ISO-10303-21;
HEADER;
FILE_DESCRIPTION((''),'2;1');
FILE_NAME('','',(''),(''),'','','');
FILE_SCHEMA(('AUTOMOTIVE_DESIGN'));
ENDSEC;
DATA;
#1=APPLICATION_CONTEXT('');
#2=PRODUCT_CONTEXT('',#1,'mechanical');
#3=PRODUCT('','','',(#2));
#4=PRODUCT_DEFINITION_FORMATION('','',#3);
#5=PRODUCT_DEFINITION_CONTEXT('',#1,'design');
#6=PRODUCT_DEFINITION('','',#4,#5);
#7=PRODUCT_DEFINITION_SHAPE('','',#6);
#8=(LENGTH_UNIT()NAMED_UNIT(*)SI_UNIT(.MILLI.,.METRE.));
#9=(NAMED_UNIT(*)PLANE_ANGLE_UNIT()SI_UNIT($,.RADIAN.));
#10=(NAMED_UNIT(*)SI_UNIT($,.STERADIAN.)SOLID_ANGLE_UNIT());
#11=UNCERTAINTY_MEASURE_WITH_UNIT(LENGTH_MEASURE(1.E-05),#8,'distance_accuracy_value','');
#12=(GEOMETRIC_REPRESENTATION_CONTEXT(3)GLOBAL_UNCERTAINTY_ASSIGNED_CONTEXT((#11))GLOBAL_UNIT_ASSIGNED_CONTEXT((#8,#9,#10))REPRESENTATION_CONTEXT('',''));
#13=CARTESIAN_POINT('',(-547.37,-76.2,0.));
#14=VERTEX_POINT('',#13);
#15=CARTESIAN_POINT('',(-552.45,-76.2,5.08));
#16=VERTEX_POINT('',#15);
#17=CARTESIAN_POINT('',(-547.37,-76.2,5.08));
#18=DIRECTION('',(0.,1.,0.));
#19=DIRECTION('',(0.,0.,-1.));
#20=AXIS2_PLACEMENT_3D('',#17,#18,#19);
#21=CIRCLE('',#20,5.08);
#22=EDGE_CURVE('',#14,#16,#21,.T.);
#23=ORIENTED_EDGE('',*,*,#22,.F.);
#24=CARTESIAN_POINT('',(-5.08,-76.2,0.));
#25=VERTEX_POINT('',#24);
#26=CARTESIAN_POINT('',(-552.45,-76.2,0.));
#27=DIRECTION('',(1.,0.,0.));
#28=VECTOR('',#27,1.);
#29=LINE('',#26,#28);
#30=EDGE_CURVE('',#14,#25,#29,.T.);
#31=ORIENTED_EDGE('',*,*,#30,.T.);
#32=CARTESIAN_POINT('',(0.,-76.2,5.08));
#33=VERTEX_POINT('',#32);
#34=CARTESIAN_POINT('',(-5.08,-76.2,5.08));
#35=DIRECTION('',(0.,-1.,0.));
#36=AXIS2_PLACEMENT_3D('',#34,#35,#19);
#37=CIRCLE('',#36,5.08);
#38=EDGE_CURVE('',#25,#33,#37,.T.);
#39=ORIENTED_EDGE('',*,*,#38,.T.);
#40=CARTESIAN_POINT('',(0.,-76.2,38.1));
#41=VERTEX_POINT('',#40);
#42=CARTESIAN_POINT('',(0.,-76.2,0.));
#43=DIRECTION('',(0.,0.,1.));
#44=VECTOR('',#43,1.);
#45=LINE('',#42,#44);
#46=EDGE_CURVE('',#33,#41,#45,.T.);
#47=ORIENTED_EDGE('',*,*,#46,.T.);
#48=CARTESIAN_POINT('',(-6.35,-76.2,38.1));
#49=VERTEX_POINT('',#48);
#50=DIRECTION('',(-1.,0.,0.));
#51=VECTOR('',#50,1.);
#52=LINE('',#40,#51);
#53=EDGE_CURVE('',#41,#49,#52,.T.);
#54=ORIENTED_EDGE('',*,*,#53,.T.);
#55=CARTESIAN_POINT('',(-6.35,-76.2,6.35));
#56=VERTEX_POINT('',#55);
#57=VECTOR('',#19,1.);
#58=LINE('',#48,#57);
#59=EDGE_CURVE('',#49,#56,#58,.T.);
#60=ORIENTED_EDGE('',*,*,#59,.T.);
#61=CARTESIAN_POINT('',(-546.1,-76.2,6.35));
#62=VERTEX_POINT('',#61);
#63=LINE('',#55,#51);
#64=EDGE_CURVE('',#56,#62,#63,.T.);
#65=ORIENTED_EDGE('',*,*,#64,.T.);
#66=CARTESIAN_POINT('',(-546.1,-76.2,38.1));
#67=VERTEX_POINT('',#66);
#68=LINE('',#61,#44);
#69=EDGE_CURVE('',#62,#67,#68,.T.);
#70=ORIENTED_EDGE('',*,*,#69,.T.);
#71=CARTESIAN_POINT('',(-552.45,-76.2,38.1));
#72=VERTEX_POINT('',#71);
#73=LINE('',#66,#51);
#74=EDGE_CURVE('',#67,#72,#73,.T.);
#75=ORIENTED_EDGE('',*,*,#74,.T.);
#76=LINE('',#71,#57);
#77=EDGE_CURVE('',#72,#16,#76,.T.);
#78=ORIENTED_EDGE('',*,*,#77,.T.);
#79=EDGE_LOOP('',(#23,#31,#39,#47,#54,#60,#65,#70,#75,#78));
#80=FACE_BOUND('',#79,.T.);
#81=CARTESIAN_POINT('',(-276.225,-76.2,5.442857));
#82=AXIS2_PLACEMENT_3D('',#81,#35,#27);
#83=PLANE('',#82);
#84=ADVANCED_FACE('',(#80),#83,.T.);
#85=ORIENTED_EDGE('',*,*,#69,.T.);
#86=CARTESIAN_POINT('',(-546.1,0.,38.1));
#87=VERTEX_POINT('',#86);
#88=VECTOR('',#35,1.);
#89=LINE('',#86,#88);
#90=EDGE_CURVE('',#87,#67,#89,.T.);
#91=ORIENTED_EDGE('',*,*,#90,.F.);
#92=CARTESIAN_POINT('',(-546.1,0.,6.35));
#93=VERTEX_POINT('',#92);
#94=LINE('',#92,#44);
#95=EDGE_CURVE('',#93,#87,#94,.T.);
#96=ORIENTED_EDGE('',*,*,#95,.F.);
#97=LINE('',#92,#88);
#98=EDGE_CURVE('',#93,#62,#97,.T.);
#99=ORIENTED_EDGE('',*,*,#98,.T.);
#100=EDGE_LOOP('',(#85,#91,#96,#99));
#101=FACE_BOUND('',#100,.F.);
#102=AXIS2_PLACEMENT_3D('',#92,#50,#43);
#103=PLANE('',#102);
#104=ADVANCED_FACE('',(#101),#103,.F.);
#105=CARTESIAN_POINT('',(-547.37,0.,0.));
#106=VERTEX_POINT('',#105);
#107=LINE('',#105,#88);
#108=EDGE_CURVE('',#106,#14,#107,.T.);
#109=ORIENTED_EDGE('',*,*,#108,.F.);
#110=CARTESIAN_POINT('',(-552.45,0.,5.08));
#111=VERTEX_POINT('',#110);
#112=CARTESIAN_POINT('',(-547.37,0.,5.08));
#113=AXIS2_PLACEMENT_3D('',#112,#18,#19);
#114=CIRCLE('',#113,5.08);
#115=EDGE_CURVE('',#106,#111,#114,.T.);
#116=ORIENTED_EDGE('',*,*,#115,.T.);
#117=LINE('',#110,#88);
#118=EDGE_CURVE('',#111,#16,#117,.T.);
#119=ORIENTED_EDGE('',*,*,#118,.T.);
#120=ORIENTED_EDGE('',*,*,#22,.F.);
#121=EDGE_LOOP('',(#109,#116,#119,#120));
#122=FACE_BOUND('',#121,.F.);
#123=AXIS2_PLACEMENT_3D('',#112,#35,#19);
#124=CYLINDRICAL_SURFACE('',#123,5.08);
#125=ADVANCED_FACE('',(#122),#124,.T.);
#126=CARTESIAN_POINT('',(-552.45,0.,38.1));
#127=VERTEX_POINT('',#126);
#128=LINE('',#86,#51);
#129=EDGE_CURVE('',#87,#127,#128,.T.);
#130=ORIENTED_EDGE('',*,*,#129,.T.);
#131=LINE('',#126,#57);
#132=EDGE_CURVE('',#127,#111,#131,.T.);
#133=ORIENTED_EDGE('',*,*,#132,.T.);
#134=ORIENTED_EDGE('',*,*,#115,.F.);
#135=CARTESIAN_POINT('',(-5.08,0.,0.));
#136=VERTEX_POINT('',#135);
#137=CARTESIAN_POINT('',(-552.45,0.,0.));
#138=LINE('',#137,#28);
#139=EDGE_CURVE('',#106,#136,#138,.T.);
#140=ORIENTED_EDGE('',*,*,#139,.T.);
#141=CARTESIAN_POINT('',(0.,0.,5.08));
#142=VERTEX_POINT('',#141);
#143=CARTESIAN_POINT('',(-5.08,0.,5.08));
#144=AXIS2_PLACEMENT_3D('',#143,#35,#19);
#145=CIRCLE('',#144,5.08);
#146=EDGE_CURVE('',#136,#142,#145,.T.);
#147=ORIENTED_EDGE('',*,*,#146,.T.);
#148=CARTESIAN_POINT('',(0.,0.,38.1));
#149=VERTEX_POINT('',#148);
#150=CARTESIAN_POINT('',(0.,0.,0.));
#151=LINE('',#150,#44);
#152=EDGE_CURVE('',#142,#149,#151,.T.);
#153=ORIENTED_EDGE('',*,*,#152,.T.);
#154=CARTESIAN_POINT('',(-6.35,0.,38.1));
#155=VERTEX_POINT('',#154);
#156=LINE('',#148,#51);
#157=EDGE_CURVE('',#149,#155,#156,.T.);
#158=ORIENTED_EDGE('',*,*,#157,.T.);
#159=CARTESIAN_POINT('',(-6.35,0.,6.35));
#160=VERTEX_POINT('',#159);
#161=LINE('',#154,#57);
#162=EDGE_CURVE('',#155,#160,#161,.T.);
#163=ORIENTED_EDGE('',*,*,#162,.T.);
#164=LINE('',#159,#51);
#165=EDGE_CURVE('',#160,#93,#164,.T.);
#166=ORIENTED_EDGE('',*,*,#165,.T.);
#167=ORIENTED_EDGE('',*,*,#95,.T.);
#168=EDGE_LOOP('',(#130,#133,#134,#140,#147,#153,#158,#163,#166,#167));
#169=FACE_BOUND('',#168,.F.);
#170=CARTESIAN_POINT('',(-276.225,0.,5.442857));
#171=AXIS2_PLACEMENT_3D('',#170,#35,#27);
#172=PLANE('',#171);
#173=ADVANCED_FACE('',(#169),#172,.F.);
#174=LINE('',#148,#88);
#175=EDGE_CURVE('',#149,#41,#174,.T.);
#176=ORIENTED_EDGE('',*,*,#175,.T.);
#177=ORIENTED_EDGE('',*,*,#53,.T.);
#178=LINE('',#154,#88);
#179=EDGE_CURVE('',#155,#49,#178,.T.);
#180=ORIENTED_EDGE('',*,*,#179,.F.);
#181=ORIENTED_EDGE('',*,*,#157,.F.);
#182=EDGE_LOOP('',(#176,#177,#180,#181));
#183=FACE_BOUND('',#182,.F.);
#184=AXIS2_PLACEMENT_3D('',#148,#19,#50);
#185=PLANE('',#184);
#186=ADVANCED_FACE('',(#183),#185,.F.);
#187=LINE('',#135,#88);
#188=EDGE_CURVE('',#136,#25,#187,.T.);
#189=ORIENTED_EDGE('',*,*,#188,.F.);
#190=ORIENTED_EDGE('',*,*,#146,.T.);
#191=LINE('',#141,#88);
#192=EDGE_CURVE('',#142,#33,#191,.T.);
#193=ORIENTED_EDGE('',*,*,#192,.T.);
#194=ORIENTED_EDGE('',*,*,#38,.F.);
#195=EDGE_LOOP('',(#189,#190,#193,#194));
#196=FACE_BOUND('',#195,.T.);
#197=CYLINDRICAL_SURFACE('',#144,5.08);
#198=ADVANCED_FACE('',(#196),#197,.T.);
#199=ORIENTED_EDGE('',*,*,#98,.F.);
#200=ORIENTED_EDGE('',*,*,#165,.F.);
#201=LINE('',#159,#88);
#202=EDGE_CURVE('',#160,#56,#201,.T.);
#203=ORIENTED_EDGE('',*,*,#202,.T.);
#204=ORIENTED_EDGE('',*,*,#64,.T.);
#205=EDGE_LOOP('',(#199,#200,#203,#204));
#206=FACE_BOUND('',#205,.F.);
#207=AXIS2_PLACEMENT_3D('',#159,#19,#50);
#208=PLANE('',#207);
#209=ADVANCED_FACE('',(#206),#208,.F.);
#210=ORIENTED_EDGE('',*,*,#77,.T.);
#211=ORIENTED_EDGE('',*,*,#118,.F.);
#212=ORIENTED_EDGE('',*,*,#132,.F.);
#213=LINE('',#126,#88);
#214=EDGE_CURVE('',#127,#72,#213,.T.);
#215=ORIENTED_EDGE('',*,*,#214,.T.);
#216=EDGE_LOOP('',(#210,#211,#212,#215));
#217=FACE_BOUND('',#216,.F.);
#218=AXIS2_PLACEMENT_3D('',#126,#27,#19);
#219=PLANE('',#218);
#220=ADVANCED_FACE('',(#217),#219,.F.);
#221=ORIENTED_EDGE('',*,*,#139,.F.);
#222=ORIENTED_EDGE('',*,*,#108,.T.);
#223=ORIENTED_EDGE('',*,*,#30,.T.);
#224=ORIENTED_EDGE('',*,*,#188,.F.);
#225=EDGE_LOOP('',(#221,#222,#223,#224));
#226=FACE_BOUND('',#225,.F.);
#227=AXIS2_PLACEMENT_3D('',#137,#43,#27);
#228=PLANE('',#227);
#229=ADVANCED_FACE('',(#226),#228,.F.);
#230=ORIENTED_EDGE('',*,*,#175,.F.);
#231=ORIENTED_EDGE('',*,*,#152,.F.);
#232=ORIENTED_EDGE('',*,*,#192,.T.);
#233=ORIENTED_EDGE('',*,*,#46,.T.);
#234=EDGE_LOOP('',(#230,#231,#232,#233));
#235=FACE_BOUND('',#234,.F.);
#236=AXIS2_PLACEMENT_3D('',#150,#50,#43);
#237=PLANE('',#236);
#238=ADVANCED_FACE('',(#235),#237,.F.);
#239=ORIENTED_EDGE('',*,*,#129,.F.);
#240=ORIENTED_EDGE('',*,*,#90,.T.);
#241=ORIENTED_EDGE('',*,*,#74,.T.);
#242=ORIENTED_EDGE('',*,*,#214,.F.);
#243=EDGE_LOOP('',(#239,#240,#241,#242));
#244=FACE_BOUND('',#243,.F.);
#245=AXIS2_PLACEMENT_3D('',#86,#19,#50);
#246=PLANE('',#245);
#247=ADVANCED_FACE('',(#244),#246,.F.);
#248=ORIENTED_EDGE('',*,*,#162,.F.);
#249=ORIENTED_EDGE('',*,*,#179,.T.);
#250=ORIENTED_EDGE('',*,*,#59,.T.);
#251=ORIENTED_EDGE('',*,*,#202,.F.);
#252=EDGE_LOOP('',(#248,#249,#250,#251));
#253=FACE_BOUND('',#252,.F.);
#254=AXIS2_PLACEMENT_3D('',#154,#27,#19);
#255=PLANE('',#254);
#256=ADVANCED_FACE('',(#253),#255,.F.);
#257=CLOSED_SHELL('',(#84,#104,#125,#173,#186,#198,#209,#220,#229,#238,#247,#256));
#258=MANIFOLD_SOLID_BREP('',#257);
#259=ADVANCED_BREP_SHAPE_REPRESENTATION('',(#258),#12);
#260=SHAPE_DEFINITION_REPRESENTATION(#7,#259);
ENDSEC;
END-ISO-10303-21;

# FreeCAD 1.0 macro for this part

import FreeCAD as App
import Part
import Sketcher
Q = App.Units.Quantity


def edges_at(feature, points):
    """Names of the edges that pass closest to the given points."""
    edges = feature.Shape.Edges
    near = lambda p: min(range(len(edges)), key=lambda i: edges[i].distToShape(Part.Vertex(*p))[0])
    return sorted({f"Edge{near(p) + 1}" for p in points})


def add_polygon(sketch, points):
    """Adds a closed chain of lines whose ends are joined by coincident constraints."""
    first, n = sketch.GeometryCount, len(points)
    for a, b in zip(points, points[1:] + points[:1]):
        sketch.addGeometry(Part.LineSegment(App.Vector(*a, 0), App.Vector(*b, 0)), False)
    for i in range(n):
        sketch.addConstraint(Sketcher.Constraint("Coincident", first + i, 2, first + (i + 1) % n, 1))

doc = App.newDocument("Part")
body = doc.addObject("PartDesign::Body", "Body")

sketch1 = doc.addObject("Sketcher::SketchObject", "Sketch")
body.addObject(sketch1)
sketch1.AttachmentSupport = (doc.XZ_Plane, [""])
sketch1.MapMode = "FlatFace"
add_polygon(sketch1, [(-552, 0), (0, 0), (0, 38), (-6, 38), (-6, 6), (-546, 6), (-546, 38), (-552, 38)])
sketch1.addConstraint(Sketcher.Constraint("Horizontal", 0))
sketch1.addConstraint(Sketcher.Constraint("Vertical", 1))
sketch1.addConstraint(Sketcher.Constraint("Horizontal", 2))
sketch1.addConstraint(Sketcher.Constraint("Vertical", 3))
sketch1.addConstraint(Sketcher.Constraint("Horizontal", 4))
sketch1.addConstraint(Sketcher.Constraint("Vertical", 5))
sketch1.addConstraint(Sketcher.Constraint("Horizontal", 6))
sketch1.addConstraint(Sketcher.Constraint("Vertical", 7))
sketch1.addConstraint(Sketcher.Constraint("Coincident", 0, 2, -1, 1))
sketch1.addConstraint(Sketcher.Constraint("Horizontal", 2, 2, 5, 2))
sketch1.addConstraint(Sketcher.Constraint("Equal", 2, 6))
sketch1.addConstraint(Sketcher.Constraint("DistanceY", 1, 1, 1, 2, Q("1.5 in")))
sketch1.addConstraint(Sketcher.Constraint("DistanceX", 0, 1, 0, 2, Q("21.75 in")))
sketch1.addConstraint(Sketcher.Constraint("DistanceX", 2, 2, 2, 1, Q("0.25 in")))
sketch1.addConstraint(Sketcher.Constraint("DistanceY", 3, 2, 3, 1, Q("1.25 in")))
pad1 = doc.addObject("PartDesign::Pad", "Pad")
body.addObject(pad1)
pad1.Profile = sketch1
pad1.Length = Q("3 in")
doc.recompute()

fillet = doc.addObject("PartDesign::Fillet", "Fillet")
body.addObject(fillet)
fillet.Base = (pad1, edges_at(pad1, [(-552.45, -38.1, 0)]))
fillet.Radius = Q("0.2 in")
doc.recompute()

fillet2 = doc.addObject("PartDesign::Fillet", "Fillet001")
body.addObject(fillet2)
fillet2.Base = (fillet, edges_at(fillet, [(0, -38.1, 0)]))
fillet2.Radius = Q("0.2 in")

doc.recompute()
